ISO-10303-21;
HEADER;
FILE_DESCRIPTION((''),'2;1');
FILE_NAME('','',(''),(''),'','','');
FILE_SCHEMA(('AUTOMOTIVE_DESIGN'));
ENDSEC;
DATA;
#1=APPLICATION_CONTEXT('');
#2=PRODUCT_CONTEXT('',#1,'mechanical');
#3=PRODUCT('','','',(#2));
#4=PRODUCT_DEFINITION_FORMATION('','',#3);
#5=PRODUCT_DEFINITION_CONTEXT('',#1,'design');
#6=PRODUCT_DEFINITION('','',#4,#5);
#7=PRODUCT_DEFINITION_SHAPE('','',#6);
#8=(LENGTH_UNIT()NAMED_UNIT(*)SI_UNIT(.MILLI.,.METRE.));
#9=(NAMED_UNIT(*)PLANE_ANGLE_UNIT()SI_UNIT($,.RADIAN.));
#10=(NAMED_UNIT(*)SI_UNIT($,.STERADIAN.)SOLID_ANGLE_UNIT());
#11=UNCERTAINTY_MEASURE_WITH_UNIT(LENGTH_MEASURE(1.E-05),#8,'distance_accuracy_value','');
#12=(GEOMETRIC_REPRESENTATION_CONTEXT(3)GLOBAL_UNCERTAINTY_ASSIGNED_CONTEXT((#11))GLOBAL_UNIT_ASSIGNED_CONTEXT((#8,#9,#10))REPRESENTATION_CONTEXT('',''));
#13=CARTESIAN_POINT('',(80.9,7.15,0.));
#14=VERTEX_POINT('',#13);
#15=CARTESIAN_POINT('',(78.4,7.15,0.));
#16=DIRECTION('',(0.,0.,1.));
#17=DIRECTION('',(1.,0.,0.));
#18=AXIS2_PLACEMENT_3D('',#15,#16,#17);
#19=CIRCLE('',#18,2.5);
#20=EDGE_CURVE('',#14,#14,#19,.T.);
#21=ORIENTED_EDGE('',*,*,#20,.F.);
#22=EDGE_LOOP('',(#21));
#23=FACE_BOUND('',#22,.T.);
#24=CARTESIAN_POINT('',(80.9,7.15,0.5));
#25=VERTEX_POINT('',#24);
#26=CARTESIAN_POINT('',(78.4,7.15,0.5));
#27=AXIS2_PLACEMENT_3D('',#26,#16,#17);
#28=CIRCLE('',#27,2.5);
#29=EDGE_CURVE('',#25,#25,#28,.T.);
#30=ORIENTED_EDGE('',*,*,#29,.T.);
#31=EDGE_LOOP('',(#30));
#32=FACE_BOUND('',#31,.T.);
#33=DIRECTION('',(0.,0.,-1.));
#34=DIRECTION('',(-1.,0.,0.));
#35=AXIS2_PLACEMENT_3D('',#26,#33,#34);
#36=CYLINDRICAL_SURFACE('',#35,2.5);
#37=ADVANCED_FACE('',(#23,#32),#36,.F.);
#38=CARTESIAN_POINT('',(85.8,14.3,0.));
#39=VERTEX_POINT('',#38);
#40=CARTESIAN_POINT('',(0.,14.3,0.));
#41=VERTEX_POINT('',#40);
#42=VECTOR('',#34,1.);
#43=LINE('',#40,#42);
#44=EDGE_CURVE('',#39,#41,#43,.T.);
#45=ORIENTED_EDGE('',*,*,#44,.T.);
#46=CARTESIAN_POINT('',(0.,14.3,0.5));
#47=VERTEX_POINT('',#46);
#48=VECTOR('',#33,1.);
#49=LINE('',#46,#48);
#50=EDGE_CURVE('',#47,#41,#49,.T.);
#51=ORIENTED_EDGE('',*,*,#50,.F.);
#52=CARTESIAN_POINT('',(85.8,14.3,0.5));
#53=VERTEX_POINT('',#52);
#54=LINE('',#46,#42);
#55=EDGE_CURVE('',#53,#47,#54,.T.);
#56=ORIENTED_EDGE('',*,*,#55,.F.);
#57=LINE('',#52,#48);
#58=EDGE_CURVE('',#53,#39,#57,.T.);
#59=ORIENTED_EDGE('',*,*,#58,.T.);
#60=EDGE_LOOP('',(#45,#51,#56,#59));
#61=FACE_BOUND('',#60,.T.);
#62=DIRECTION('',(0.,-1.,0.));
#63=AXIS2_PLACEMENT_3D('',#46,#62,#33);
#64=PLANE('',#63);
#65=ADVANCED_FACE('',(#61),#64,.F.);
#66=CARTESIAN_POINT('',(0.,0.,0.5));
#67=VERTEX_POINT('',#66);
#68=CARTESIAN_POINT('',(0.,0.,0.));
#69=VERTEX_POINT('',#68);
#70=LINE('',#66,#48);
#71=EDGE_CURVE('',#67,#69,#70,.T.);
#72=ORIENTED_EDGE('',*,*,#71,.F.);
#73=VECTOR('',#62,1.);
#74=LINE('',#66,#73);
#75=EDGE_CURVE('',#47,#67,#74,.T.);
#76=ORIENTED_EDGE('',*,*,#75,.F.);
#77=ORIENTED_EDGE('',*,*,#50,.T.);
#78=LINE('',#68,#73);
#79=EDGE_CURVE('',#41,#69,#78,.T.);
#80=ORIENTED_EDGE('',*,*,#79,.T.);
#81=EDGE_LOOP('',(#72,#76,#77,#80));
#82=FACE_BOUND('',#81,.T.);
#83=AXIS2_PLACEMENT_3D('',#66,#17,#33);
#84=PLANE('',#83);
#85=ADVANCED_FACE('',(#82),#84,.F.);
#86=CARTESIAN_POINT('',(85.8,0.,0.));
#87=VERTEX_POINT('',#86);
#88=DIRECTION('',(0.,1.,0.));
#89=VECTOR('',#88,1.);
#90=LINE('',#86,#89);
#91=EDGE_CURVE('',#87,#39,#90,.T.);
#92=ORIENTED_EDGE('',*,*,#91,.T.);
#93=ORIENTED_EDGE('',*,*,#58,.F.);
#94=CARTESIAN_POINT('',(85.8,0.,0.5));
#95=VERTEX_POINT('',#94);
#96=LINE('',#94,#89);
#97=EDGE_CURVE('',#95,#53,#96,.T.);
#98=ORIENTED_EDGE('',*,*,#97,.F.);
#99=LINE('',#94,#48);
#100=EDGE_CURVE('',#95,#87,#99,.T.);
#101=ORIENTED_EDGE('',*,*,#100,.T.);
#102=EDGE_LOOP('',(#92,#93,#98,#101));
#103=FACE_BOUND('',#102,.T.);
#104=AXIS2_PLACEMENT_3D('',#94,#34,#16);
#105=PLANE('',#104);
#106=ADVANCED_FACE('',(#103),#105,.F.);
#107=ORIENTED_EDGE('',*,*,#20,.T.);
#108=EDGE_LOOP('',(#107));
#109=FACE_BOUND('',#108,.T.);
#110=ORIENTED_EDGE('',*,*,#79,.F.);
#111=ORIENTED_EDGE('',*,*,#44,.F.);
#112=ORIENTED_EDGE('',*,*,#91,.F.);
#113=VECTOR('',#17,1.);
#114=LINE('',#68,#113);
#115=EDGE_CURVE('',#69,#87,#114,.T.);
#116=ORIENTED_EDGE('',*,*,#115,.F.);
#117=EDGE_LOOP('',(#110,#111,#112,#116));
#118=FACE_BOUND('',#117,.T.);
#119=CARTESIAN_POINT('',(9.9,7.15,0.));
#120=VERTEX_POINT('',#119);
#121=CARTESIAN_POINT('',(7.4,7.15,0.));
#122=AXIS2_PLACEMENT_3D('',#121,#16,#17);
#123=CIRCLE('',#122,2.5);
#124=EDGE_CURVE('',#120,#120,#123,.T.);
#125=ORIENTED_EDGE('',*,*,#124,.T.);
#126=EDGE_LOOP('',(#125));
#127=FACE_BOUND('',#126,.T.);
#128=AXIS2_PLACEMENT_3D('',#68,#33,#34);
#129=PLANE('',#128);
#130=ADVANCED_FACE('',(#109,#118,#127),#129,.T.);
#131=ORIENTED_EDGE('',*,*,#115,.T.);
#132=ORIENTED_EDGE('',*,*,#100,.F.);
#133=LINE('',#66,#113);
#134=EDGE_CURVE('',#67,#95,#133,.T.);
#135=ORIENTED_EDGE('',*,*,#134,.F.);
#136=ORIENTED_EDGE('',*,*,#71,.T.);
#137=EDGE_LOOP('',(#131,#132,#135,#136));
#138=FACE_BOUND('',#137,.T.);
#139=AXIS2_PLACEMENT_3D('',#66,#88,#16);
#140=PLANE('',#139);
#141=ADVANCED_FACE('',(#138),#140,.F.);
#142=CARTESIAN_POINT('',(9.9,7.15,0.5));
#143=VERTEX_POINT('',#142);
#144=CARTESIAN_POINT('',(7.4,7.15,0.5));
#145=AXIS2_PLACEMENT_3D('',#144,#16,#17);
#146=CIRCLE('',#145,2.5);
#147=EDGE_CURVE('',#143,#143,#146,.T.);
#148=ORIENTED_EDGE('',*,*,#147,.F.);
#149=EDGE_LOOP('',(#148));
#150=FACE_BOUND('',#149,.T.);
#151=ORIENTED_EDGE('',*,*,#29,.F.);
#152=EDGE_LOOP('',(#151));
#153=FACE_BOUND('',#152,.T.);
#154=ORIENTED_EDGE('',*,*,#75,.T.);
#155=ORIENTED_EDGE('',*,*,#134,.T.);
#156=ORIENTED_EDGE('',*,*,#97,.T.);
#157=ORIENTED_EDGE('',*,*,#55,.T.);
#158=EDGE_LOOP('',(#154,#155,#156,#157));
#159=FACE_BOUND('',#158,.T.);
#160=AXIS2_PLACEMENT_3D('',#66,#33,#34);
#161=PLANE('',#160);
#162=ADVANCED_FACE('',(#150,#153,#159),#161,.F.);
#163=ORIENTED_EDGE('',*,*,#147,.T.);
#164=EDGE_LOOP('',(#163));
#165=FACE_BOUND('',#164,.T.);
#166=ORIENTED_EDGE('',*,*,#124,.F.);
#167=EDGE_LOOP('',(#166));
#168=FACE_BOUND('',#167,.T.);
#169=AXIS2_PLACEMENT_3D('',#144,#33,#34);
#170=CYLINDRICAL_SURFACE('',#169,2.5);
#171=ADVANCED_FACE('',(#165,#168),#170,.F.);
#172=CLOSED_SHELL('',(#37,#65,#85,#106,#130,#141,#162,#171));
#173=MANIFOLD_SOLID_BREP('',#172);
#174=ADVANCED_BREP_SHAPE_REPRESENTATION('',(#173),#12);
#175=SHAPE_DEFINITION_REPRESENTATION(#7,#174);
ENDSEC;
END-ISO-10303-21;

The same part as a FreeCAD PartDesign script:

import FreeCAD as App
import Part
import Sketcher


def add_polygon(sketch, points):
    """Adds a closed chain of lines whose ends are joined by coincident constraints."""
    first, n = sketch.GeometryCount, len(points)
    for a, b in zip(points, points[1:] + points[:1]):
        sketch.addGeometry(Part.LineSegment(App.Vector(*a, 0), App.Vector(*b, 0)), False)
    for i in range(n):
        sketch.addConstraint(Sketcher.Constraint("Coincident", first + i, 2, first + (i + 1) % n, 1))

doc = App.newDocument("Part")
params = doc.addObject("Spreadsheet::Sheet", "Params")
for row, (alias, value) in enumerate([
    ("sketch1_diameter", "5 mm"),
    ("sketch1_width", "85.8 mm"),
    ("sketch1_height", "14.3 mm"),
    ("pad1_length", "0.5 mm"),
], start=1):
    params.set(f"A{row}", alias)
    params.set(f"B{row}", "=" + value)
    params.setAlias(f"B{row}", alias)

body = doc.addObject("PartDesign::Body", "Body")

sketch1 = body.newObject("Sketcher::SketchObject", "Sketch")
sketch1.AttachmentSupport = (doc.getObject("XY_Plane"), [""])
sketch1.MapMode = "FlatFace"
add_polygon(sketch1, [(0, 14.3), (0, 0), (85.8, 0), (85.8, 14.3)])
sketch1.addGeometry(Part.Circle(App.Vector(7.4, 7.2, 0), App.Vector(0, 0, 1), 2.5), False)
sketch1.addGeometry(Part.Circle(App.Vector(78.4, 7.2, 0), App.Vector(0, 0, 1), 2.5), False)
sketch1.addConstraint([
    Sketcher.Constraint("Vertical", 0),
    Sketcher.Constraint("Horizontal", 1),
    Sketcher.Constraint("Vertical", 2),
    Sketcher.Constraint("Horizontal", 3),
    Sketcher.Constraint("Coincident", 0, 2, -1, 1),
    Sketcher.Constraint("Equal", 4, 5),
    Sketcher.Constraint("Horizontal", 4, 3, 5, 3),
    Sketcher.Constraint("Diameter", 4, 5.0),
    Sketcher.Constraint("DistanceX", 1, 1, 1, 2, 85.8),
    Sketcher.Constraint("DistanceY", 0, 2, 0, 1, 14.3),
    Sketcher.Constraint("DistanceX", 4, 3, 5, 3, 71.0),
    Sketcher.Constraint("DistanceX", -1, 1, 4, 3, 7.4),
    Sketcher.Constraint("DistanceY", -1, 1, 4, 3, 7.15),
])
sketch1.setExpression("Constraints[11]", "Params.sketch1_diameter")
sketch1.setExpression("Constraints[12]", "Params.sketch1_width")
sketch1.setExpression("Constraints[13]", "Params.sketch1_height")
pad1 = body.newObject("PartDesign::Pad", "Pad")
pad1.Profile = sketch1
pad1.setExpression("Length", "Params.pad1_length")

doc.recompute()
